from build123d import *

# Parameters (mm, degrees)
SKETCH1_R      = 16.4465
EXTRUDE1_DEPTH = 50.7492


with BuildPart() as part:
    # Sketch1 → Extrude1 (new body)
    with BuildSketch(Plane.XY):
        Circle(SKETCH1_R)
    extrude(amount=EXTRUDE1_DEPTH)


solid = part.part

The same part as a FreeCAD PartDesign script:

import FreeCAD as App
import Part
import Sketcher
Q = App.Units.Quantity

doc = App.newDocument("Part")
body = doc.addObject("PartDesign::Body", "Body")

# Sketch on XY plane
sketch1 = body.newObject("Sketcher::SketchObject", "Sketch")
sketch1.AttachmentSupport = (doc.getObject("XY_Plane"), [""])
sketch1.MapMode = "FlatFace"
sketch1.addGeometry(Part.Circle(App.Vector(0, 0, 0), App.Vector(0, 0, 1), 16), False)
sketch1.addConstraint([
    Sketcher.Constraint("Coincident", 0, 3, -1, 1),
    Sketcher.Constraint("Diameter", 0, Q("1.295 in")),
])
pad1 = body.newObject("PartDesign::Pad", "Pad")
pad1.Profile = sketch1
pad1.Length = Q("1.998 in")

doc.recompute()
